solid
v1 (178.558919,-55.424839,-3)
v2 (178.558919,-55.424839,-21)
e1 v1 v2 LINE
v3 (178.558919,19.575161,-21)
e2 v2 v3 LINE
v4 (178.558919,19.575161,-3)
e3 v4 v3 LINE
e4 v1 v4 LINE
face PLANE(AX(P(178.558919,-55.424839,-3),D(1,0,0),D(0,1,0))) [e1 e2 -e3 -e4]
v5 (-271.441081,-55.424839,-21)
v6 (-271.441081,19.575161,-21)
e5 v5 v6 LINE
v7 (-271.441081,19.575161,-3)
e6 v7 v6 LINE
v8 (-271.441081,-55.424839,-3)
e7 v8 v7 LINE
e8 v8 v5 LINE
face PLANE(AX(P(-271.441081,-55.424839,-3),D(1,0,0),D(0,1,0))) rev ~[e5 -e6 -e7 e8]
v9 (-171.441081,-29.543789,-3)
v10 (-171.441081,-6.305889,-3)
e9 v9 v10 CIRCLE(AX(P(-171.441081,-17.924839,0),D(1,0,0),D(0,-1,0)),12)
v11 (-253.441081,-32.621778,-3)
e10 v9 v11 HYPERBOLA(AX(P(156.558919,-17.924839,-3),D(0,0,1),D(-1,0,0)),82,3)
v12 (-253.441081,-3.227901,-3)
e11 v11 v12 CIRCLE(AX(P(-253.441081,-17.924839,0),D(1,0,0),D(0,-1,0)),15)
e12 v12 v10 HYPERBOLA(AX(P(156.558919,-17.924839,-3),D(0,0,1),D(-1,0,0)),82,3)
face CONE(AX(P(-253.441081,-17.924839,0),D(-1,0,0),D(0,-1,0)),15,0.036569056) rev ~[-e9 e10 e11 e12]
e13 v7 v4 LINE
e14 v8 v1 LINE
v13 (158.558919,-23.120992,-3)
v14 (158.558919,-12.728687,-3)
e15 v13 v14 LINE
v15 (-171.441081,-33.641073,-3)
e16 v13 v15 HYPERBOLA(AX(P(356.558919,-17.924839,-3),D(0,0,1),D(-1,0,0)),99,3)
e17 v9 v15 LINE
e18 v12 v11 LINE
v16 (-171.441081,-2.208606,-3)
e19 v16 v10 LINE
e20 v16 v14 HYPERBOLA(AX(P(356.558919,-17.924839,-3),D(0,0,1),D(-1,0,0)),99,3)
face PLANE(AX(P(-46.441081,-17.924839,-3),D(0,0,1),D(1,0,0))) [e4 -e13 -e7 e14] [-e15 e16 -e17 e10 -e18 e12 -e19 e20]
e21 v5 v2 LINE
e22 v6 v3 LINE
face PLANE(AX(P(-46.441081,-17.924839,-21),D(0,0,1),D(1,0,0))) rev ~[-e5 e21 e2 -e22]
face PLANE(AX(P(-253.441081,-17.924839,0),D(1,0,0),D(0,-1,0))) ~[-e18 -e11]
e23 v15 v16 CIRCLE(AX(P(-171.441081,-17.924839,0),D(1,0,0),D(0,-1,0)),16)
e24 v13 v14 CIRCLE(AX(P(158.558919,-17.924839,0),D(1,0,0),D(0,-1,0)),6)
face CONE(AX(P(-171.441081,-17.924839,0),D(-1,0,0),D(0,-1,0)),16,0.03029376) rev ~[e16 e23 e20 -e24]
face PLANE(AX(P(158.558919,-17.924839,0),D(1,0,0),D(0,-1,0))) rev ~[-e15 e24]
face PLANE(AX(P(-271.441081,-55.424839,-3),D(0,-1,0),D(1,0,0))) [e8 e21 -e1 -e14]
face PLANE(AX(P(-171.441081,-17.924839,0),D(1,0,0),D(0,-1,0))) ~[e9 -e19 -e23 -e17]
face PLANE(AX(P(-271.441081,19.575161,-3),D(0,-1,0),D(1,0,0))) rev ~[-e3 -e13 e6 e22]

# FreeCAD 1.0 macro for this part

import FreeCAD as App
import Part
import Sketcher
from FreeCAD import Vector
Q = App.Units.Quantity


def add_polygon(sketch, points):
    """Adds a closed chain of lines whose ends are joined by coincident constraints."""
    first, n = sketch.GeometryCount, len(points)
    for a, b in zip(points, points[1:] + points[:1]):
        sketch.addGeometry(Part.LineSegment(App.Vector(*a, 0), App.Vector(*b, 0)), False)
    for i in range(n):
        sketch.addConstraint(Sketcher.Constraint("Coincident", first + i, 2, first + (i + 1) % n, 1))

doc = App.newDocument("Part")
body = doc.addObject("PartDesign::Body", "Body")

# Sketch on XY plane
sketch1 = body.newObject("Sketcher::SketchObject", "Sketch")
sketch1.AttachmentSupport = (doc.getObject("XY_Plane"), [""])
sketch1.MapMode = "FlatFace"
sketch1.AttachmentOffset = App.Placement(Vector(0, 0, -3), App.Rotation())
add_polygon(sketch1, [(-271, 20), (-271, -55), (179, -55), (179, 20)])  # lines 0-3
sketch1.addConstraint([
    Sketcher.Constraint("Vertical", 0),
    Sketcher.Constraint("Horizontal", 1),
    Sketcher.Constraint("Vertical", 2),
    Sketcher.Constraint("Horizontal", 3),
    Sketcher.Constraint("DistanceX", 1, 1, 1, 2, Q("450 mm")),
    Sketcher.Constraint("DistanceY", 0, 2, 0, 1, Q("75 mm")),
    Sketcher.Constraint("DistanceX", 0, 2, -1, 1, Q("271.441081 mm")),
    Sketcher.Constraint("DistanceY", 0, 2, -1, 1, Q("55.424839 mm")),
])
pad1 = body.newObject("PartDesign::Pad", "Pad")
pad1.Profile = sketch1
pad1.Length = 18
pad1.Reversed = True

# Sketch on XY plane
sketch2 = body.newObject("Sketcher::SketchObject", "Sketch001")
sketch2.AttachmentSupport = (doc.getObject("XY_Plane"), [""])
sketch2.MapMode = "FlatFace"
add_polygon(sketch2, [(158.6, -17.9), (-253.4, -17.9), (-253.4, -32.9), (-171.4, -29.9), (-171.4, -33.9), (158.6, -23.9)])  # lines 0-5
sketch2.addGeometry(Part.LineSegment(Vector(-253.4, -17.9, 0), Vector(158.6, -17.9, 0)), True)  # axis
sketch2.addConstraint([
    Sketcher.Constraint("Horizontal", 0),
    Sketcher.Constraint("Vertical", 1),
    Sketcher.Constraint("Vertical", 3),
    Sketcher.Constraint("Vertical", 5),
    Sketcher.Constraint("Horizontal", 6),
    Sketcher.Constraint("Coincident", 6, 1, 0, 2),
    Sketcher.Constraint("Vertical", 4, 2, 6, 2),
    Sketcher.Constraint("DistanceX", 0, 2, 0, 1, Q("412 mm")),
    Sketcher.Constraint("DistanceY", 1, 2, 1, 1, Q("15 mm")),
    Sketcher.Constraint("DistanceY", 3, 2, 3, 1, Q("4 mm")),
    Sketcher.Constraint("DistanceY", 5, 1, 5, 2, Q("6 mm")),
    Sketcher.Constraint("DistanceX", 1, 2, 2, 2, Q("82 mm")),
    Sketcher.Constraint("DistanceY", 1, 2, 2, 2, Q("3 mm")),
    Sketcher.Constraint("DistanceX", 0, 2, -1, 1, Q("253.441081 mm")),
    Sketcher.Constraint("DistanceY", 0, 2, -1, 1, Q("17.924839 mm")),
])
groove = body.newObject("PartDesign::Groove", "Groove")
groove.Profile = sketch2
groove.ReferenceAxis = (sketch2, ["Axis0"])
groove.Angle = 360

doc.recompute()
